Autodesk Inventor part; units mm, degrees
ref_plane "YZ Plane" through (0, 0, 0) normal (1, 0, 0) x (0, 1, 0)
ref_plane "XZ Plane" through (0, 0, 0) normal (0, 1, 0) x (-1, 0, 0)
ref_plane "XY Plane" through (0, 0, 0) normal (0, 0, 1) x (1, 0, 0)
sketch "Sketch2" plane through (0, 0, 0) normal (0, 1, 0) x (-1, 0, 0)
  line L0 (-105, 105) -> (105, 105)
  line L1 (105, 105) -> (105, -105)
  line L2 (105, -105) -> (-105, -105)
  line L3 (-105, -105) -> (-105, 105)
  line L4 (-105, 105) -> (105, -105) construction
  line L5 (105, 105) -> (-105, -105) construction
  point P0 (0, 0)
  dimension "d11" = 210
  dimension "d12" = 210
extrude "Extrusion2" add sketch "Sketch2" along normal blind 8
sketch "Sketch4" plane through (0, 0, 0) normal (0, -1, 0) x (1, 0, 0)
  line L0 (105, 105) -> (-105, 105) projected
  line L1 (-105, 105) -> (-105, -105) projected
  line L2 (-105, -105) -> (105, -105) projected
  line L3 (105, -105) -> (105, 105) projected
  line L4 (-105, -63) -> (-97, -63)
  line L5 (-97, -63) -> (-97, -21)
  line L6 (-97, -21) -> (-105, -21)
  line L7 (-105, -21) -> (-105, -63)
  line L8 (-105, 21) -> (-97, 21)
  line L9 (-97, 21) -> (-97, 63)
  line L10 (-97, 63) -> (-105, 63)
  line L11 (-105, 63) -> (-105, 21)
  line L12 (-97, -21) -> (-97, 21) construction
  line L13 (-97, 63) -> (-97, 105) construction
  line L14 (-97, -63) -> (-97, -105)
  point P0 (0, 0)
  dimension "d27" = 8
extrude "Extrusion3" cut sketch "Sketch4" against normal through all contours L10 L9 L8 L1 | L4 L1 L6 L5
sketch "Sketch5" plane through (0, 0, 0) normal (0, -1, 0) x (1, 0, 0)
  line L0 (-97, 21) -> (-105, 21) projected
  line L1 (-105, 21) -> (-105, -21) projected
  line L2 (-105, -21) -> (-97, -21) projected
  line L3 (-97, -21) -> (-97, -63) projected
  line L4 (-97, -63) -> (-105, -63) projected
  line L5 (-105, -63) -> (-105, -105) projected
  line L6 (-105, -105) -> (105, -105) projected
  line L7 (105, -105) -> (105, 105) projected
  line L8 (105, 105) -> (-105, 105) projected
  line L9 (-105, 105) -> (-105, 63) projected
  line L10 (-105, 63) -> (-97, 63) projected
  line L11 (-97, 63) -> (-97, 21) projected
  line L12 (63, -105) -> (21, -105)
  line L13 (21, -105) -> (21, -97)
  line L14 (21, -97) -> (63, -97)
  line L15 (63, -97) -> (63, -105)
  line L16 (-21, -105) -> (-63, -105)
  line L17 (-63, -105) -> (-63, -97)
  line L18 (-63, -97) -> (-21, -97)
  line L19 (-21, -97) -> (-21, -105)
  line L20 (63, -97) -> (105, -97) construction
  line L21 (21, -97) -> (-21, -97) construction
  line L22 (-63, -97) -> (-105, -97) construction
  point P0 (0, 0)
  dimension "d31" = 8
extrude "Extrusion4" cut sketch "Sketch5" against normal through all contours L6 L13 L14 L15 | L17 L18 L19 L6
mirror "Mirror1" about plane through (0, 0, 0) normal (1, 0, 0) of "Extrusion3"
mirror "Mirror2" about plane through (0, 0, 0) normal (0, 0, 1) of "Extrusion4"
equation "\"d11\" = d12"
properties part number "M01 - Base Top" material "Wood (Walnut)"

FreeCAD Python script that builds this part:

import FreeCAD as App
import Part
import Sketcher

V = App.Vector
Q = App.Units.Quantity

doc = App.newDocument("Part")
params = doc.addObject("Spreadsheet::Sheet", "Params")
for row, (alias, value) in enumerate([
    ("sketch1_width", "210 mm"),
    ("pad1_length", "8 mm"),
    ("sketch2_width", "8 mm"),
    ("sketch2_height", "42 mm"),
    ("sketch3_height", "8 mm"),
    ("sketch3_width", "42 mm"),
], start=1):
    params.set(f"A{row}", alias)
    params.set(f"B{row}", "=" + value)
    params.setAlias(f"B{row}", alias)

body = doc.addObject("PartDesign::Body", "Body")

# Sketch on XZ plane
sketch1 = body.newObject("Sketcher::SketchObject", "Sketch")
sketch1.AttachmentSupport = (doc.getObject("XZ_Plane"), [""])
sketch1.MapMode = "FlatFace"
sketch1.addGeometry([
    Part.LineSegment(V(-105, 105, 0), V(105, 105, 0)),
    Part.LineSegment(V(105, 105, 0), V(105, -105, 0)),
    Part.LineSegment(V(105, -105, 0), V(-105, -105, 0)),
    Part.LineSegment(V(-105, -105, 0), V(-105, 105, 0)),
], False)
sketch1.addConstraint([
    Sketcher.Constraint("Coincident", 0, 2, 1, 1),
    Sketcher.Constraint("Coincident", 1, 2, 2, 1),
    Sketcher.Constraint("Coincident", 2, 2, 3, 1),
    Sketcher.Constraint("Coincident", 3, 2, 0, 1),
    Sketcher.Constraint("Horizontal", 0),
    Sketcher.Constraint("Vertical", 1),
    Sketcher.Constraint("Horizontal", 2),
    Sketcher.Constraint("Vertical", 3),
    Sketcher.Constraint("Symmetric", 0, 2, 2, 2, -1, 1),
    Sketcher.Constraint("Equal", 2, 1),
    Sketcher.Constraint("DistanceX", 0, 1, 0, 2, Q("210 mm")),
])
sketch1.setExpression("Constraints[10]", "Params.sketch1_width")
pad1 = body.newObject("PartDesign::Pad", "Pad")
pad1.Profile = sketch1
pad1.setExpression("Length", "Params.pad1_length")
pad1.Reversed = True

# Sketch on XZ plane
sketch2 = body.newObject("Sketcher::SketchObject", "Sketch001")
sketch2.AttachmentSupport = (doc.getObject("XZ_Plane"), [""])
sketch2.MapMode = "FlatFace"
sketch2.addGeometry([
    Part.LineSegment(V(-97, 63, 0), V(-105, 63, 0)),  # 0
    Part.LineSegment(V(-105, 63, 0), V(-105, 21, 0)),  # 1
    Part.LineSegment(V(-105, 21, 0), V(-97, 21, 0)),  # 2
    Part.LineSegment(V(-97, 21, 0), V(-97, 63, 0)),  # 3
    Part.LineSegment(V(-105, -63, 0), V(-97, -63, 0)),  # 4
    Part.LineSegment(V(-97, -63, 0), V(-97, -21, 0)),  # 5
    Part.LineSegment(V(-97, -21, 0), V(-105, -21, 0)),  # 6
    Part.LineSegment(V(-105, -21, 0), V(-105, -63, 0)),  # 7
], False)
sketch2.addConstraint([
    Sketcher.Constraint("Coincident", 0, 2, 1, 1),
    Sketcher.Constraint("Coincident", 1, 2, 2, 1),
    Sketcher.Constraint("Coincident", 2, 2, 3, 1),
    Sketcher.Constraint("Coincident", 3, 2, 0, 1),
    Sketcher.Constraint("Coincident", 4, 2, 5, 1),
    Sketcher.Constraint("Coincident", 5, 2, 6, 1),
    Sketcher.Constraint("Coincident", 6, 2, 7, 1),
    Sketcher.Constraint("Coincident", 7, 2, 4, 1),
    Sketcher.Constraint("Horizontal", 0),
    Sketcher.Constraint("Vertical", 1),
    Sketcher.Constraint("Horizontal", 2),
    Sketcher.Constraint("Vertical", 3),
    Sketcher.Constraint("Horizontal", 4),
    Sketcher.Constraint("Vertical", 5),
    Sketcher.Constraint("Horizontal", 6),
    Sketcher.Constraint("Vertical", 7),
    Sketcher.Constraint("Symmetric", 3, 2, 4, 2, -1),
    Sketcher.Constraint("Symmetric", 1, 2, 6, 2, -1),
    Sketcher.Constraint("DistanceX", 0, 2, 0, 1, Q("8 mm")),
    Sketcher.Constraint("DistanceY", 1, 2, 1, 1, Q("42 mm")),
    Sketcher.Constraint("DistanceX", 0, 2, -1, 1, Q("105 mm")),
    Sketcher.Constraint("DistanceY", -1, 1, 0, 2, Q("63 mm")),
])
sketch2.setExpression("Constraints[18]", "Params.sketch2_width")
sketch2.setExpression("Constraints[19]", "Params.sketch2_height")
pocket1 = body.newObject("PartDesign::Pocket", "Pocket")
pocket1.Profile = sketch2
pocket1.Type = "ThroughAll"

# Sketch on XZ plane
sketch3 = body.newObject("Sketcher::SketchObject", "Sketch002")
sketch3.AttachmentSupport = (doc.getObject("XZ_Plane"), [""])
sketch3.MapMode = "FlatFace"
sketch3.addGeometry([
    Part.LineSegment(V(21, -105, 0), V(63, -105, 0)),  # 0
    Part.LineSegment(V(63, -105, 0), V(63, -97, 0)),  # 1
    Part.LineSegment(V(63, -97, 0), V(21, -97, 0)),  # 2
    Part.LineSegment(V(21, -97, 0), V(21, -105, 0)),  # 3
    Part.LineSegment(V(-63, -97, 0), V(-63, -105, 0)),  # 4
    Part.LineSegment(V(-63, -105, 0), V(-21, -105, 0)),  # 5
    Part.LineSegment(V(-21, -105, 0), V(-21, -97, 0)),  # 6
    Part.LineSegment(V(-21, -97, 0), V(-63, -97, 0)),  # 7
], False)
sketch3.addConstraint([
    Sketcher.Constraint("Coincident", 0, 2, 1, 1),
    Sketcher.Constraint("Coincident", 1, 2, 2, 1),
    Sketcher.Constraint("Coincident", 2, 2, 3, 1),
    Sketcher.Constraint("Coincident", 3, 2, 0, 1),
    Sketcher.Constraint("Coincident", 4, 2, 5, 1),
    Sketcher.Constraint("Coincident", 5, 2, 6, 1),
    Sketcher.Constraint("Coincident", 6, 2, 7, 1),
    Sketcher.Constraint("Coincident", 7, 2, 4, 1),
    Sketcher.Constraint("Horizontal", 0),
    Sketcher.Constraint("Vertical", 1),
    Sketcher.Constraint("Horizontal", 2),
    Sketcher.Constraint("Vertical", 3),
    Sketcher.Constraint("Vertical", 4),
    Sketcher.Constraint("Horizontal", 5),
    Sketcher.Constraint("Vertical", 6),
    Sketcher.Constraint("Horizontal", 7),
    Sketcher.Constraint("Symmetric", 0, 2, 4, 2, -2),
    Sketcher.Constraint("Symmetric", 2, 2, 6, 2, -2),
    Sketcher.Constraint("DistanceY", 1, 1, 1, 2, Q("8 mm")),
    Sketcher.Constraint("DistanceX", 0, 1, 0, 2, Q("42 mm")),
    Sketcher.Constraint("DistanceX", -1, 1, 0, 2, Q("63 mm")),
    Sketcher.Constraint("DistanceY", 0, 2, -1, 1, Q("105 mm")),
])
sketch3.setExpression("Constraints[18]", "Params.sketch3_height")
sketch3.setExpression("Constraints[19]", "Params.sketch3_width")
pocket2 = body.newObject("PartDesign::Pocket", "Pocket001")
pocket2.Profile = sketch3
pocket2.Type = "ThroughAll"
doc.recompute()

mirrored = body.newObject("PartDesign::Mirrored", "Mirrored")
mirrored.Originals = [pocket1]
mirrored.MirrorPlane = (doc.getObject("YZ_Plane"), [""])
body.Tip = mirrored
doc.recompute()

mirrored2 = body.newObject("PartDesign::Mirrored", "Mirrored001")
mirrored2.Originals = [pocket2]
mirrored2.MirrorPlane = (doc.getObject("XY_Plane"), [""])
body.Tip = mirrored2

doc.recompute()
